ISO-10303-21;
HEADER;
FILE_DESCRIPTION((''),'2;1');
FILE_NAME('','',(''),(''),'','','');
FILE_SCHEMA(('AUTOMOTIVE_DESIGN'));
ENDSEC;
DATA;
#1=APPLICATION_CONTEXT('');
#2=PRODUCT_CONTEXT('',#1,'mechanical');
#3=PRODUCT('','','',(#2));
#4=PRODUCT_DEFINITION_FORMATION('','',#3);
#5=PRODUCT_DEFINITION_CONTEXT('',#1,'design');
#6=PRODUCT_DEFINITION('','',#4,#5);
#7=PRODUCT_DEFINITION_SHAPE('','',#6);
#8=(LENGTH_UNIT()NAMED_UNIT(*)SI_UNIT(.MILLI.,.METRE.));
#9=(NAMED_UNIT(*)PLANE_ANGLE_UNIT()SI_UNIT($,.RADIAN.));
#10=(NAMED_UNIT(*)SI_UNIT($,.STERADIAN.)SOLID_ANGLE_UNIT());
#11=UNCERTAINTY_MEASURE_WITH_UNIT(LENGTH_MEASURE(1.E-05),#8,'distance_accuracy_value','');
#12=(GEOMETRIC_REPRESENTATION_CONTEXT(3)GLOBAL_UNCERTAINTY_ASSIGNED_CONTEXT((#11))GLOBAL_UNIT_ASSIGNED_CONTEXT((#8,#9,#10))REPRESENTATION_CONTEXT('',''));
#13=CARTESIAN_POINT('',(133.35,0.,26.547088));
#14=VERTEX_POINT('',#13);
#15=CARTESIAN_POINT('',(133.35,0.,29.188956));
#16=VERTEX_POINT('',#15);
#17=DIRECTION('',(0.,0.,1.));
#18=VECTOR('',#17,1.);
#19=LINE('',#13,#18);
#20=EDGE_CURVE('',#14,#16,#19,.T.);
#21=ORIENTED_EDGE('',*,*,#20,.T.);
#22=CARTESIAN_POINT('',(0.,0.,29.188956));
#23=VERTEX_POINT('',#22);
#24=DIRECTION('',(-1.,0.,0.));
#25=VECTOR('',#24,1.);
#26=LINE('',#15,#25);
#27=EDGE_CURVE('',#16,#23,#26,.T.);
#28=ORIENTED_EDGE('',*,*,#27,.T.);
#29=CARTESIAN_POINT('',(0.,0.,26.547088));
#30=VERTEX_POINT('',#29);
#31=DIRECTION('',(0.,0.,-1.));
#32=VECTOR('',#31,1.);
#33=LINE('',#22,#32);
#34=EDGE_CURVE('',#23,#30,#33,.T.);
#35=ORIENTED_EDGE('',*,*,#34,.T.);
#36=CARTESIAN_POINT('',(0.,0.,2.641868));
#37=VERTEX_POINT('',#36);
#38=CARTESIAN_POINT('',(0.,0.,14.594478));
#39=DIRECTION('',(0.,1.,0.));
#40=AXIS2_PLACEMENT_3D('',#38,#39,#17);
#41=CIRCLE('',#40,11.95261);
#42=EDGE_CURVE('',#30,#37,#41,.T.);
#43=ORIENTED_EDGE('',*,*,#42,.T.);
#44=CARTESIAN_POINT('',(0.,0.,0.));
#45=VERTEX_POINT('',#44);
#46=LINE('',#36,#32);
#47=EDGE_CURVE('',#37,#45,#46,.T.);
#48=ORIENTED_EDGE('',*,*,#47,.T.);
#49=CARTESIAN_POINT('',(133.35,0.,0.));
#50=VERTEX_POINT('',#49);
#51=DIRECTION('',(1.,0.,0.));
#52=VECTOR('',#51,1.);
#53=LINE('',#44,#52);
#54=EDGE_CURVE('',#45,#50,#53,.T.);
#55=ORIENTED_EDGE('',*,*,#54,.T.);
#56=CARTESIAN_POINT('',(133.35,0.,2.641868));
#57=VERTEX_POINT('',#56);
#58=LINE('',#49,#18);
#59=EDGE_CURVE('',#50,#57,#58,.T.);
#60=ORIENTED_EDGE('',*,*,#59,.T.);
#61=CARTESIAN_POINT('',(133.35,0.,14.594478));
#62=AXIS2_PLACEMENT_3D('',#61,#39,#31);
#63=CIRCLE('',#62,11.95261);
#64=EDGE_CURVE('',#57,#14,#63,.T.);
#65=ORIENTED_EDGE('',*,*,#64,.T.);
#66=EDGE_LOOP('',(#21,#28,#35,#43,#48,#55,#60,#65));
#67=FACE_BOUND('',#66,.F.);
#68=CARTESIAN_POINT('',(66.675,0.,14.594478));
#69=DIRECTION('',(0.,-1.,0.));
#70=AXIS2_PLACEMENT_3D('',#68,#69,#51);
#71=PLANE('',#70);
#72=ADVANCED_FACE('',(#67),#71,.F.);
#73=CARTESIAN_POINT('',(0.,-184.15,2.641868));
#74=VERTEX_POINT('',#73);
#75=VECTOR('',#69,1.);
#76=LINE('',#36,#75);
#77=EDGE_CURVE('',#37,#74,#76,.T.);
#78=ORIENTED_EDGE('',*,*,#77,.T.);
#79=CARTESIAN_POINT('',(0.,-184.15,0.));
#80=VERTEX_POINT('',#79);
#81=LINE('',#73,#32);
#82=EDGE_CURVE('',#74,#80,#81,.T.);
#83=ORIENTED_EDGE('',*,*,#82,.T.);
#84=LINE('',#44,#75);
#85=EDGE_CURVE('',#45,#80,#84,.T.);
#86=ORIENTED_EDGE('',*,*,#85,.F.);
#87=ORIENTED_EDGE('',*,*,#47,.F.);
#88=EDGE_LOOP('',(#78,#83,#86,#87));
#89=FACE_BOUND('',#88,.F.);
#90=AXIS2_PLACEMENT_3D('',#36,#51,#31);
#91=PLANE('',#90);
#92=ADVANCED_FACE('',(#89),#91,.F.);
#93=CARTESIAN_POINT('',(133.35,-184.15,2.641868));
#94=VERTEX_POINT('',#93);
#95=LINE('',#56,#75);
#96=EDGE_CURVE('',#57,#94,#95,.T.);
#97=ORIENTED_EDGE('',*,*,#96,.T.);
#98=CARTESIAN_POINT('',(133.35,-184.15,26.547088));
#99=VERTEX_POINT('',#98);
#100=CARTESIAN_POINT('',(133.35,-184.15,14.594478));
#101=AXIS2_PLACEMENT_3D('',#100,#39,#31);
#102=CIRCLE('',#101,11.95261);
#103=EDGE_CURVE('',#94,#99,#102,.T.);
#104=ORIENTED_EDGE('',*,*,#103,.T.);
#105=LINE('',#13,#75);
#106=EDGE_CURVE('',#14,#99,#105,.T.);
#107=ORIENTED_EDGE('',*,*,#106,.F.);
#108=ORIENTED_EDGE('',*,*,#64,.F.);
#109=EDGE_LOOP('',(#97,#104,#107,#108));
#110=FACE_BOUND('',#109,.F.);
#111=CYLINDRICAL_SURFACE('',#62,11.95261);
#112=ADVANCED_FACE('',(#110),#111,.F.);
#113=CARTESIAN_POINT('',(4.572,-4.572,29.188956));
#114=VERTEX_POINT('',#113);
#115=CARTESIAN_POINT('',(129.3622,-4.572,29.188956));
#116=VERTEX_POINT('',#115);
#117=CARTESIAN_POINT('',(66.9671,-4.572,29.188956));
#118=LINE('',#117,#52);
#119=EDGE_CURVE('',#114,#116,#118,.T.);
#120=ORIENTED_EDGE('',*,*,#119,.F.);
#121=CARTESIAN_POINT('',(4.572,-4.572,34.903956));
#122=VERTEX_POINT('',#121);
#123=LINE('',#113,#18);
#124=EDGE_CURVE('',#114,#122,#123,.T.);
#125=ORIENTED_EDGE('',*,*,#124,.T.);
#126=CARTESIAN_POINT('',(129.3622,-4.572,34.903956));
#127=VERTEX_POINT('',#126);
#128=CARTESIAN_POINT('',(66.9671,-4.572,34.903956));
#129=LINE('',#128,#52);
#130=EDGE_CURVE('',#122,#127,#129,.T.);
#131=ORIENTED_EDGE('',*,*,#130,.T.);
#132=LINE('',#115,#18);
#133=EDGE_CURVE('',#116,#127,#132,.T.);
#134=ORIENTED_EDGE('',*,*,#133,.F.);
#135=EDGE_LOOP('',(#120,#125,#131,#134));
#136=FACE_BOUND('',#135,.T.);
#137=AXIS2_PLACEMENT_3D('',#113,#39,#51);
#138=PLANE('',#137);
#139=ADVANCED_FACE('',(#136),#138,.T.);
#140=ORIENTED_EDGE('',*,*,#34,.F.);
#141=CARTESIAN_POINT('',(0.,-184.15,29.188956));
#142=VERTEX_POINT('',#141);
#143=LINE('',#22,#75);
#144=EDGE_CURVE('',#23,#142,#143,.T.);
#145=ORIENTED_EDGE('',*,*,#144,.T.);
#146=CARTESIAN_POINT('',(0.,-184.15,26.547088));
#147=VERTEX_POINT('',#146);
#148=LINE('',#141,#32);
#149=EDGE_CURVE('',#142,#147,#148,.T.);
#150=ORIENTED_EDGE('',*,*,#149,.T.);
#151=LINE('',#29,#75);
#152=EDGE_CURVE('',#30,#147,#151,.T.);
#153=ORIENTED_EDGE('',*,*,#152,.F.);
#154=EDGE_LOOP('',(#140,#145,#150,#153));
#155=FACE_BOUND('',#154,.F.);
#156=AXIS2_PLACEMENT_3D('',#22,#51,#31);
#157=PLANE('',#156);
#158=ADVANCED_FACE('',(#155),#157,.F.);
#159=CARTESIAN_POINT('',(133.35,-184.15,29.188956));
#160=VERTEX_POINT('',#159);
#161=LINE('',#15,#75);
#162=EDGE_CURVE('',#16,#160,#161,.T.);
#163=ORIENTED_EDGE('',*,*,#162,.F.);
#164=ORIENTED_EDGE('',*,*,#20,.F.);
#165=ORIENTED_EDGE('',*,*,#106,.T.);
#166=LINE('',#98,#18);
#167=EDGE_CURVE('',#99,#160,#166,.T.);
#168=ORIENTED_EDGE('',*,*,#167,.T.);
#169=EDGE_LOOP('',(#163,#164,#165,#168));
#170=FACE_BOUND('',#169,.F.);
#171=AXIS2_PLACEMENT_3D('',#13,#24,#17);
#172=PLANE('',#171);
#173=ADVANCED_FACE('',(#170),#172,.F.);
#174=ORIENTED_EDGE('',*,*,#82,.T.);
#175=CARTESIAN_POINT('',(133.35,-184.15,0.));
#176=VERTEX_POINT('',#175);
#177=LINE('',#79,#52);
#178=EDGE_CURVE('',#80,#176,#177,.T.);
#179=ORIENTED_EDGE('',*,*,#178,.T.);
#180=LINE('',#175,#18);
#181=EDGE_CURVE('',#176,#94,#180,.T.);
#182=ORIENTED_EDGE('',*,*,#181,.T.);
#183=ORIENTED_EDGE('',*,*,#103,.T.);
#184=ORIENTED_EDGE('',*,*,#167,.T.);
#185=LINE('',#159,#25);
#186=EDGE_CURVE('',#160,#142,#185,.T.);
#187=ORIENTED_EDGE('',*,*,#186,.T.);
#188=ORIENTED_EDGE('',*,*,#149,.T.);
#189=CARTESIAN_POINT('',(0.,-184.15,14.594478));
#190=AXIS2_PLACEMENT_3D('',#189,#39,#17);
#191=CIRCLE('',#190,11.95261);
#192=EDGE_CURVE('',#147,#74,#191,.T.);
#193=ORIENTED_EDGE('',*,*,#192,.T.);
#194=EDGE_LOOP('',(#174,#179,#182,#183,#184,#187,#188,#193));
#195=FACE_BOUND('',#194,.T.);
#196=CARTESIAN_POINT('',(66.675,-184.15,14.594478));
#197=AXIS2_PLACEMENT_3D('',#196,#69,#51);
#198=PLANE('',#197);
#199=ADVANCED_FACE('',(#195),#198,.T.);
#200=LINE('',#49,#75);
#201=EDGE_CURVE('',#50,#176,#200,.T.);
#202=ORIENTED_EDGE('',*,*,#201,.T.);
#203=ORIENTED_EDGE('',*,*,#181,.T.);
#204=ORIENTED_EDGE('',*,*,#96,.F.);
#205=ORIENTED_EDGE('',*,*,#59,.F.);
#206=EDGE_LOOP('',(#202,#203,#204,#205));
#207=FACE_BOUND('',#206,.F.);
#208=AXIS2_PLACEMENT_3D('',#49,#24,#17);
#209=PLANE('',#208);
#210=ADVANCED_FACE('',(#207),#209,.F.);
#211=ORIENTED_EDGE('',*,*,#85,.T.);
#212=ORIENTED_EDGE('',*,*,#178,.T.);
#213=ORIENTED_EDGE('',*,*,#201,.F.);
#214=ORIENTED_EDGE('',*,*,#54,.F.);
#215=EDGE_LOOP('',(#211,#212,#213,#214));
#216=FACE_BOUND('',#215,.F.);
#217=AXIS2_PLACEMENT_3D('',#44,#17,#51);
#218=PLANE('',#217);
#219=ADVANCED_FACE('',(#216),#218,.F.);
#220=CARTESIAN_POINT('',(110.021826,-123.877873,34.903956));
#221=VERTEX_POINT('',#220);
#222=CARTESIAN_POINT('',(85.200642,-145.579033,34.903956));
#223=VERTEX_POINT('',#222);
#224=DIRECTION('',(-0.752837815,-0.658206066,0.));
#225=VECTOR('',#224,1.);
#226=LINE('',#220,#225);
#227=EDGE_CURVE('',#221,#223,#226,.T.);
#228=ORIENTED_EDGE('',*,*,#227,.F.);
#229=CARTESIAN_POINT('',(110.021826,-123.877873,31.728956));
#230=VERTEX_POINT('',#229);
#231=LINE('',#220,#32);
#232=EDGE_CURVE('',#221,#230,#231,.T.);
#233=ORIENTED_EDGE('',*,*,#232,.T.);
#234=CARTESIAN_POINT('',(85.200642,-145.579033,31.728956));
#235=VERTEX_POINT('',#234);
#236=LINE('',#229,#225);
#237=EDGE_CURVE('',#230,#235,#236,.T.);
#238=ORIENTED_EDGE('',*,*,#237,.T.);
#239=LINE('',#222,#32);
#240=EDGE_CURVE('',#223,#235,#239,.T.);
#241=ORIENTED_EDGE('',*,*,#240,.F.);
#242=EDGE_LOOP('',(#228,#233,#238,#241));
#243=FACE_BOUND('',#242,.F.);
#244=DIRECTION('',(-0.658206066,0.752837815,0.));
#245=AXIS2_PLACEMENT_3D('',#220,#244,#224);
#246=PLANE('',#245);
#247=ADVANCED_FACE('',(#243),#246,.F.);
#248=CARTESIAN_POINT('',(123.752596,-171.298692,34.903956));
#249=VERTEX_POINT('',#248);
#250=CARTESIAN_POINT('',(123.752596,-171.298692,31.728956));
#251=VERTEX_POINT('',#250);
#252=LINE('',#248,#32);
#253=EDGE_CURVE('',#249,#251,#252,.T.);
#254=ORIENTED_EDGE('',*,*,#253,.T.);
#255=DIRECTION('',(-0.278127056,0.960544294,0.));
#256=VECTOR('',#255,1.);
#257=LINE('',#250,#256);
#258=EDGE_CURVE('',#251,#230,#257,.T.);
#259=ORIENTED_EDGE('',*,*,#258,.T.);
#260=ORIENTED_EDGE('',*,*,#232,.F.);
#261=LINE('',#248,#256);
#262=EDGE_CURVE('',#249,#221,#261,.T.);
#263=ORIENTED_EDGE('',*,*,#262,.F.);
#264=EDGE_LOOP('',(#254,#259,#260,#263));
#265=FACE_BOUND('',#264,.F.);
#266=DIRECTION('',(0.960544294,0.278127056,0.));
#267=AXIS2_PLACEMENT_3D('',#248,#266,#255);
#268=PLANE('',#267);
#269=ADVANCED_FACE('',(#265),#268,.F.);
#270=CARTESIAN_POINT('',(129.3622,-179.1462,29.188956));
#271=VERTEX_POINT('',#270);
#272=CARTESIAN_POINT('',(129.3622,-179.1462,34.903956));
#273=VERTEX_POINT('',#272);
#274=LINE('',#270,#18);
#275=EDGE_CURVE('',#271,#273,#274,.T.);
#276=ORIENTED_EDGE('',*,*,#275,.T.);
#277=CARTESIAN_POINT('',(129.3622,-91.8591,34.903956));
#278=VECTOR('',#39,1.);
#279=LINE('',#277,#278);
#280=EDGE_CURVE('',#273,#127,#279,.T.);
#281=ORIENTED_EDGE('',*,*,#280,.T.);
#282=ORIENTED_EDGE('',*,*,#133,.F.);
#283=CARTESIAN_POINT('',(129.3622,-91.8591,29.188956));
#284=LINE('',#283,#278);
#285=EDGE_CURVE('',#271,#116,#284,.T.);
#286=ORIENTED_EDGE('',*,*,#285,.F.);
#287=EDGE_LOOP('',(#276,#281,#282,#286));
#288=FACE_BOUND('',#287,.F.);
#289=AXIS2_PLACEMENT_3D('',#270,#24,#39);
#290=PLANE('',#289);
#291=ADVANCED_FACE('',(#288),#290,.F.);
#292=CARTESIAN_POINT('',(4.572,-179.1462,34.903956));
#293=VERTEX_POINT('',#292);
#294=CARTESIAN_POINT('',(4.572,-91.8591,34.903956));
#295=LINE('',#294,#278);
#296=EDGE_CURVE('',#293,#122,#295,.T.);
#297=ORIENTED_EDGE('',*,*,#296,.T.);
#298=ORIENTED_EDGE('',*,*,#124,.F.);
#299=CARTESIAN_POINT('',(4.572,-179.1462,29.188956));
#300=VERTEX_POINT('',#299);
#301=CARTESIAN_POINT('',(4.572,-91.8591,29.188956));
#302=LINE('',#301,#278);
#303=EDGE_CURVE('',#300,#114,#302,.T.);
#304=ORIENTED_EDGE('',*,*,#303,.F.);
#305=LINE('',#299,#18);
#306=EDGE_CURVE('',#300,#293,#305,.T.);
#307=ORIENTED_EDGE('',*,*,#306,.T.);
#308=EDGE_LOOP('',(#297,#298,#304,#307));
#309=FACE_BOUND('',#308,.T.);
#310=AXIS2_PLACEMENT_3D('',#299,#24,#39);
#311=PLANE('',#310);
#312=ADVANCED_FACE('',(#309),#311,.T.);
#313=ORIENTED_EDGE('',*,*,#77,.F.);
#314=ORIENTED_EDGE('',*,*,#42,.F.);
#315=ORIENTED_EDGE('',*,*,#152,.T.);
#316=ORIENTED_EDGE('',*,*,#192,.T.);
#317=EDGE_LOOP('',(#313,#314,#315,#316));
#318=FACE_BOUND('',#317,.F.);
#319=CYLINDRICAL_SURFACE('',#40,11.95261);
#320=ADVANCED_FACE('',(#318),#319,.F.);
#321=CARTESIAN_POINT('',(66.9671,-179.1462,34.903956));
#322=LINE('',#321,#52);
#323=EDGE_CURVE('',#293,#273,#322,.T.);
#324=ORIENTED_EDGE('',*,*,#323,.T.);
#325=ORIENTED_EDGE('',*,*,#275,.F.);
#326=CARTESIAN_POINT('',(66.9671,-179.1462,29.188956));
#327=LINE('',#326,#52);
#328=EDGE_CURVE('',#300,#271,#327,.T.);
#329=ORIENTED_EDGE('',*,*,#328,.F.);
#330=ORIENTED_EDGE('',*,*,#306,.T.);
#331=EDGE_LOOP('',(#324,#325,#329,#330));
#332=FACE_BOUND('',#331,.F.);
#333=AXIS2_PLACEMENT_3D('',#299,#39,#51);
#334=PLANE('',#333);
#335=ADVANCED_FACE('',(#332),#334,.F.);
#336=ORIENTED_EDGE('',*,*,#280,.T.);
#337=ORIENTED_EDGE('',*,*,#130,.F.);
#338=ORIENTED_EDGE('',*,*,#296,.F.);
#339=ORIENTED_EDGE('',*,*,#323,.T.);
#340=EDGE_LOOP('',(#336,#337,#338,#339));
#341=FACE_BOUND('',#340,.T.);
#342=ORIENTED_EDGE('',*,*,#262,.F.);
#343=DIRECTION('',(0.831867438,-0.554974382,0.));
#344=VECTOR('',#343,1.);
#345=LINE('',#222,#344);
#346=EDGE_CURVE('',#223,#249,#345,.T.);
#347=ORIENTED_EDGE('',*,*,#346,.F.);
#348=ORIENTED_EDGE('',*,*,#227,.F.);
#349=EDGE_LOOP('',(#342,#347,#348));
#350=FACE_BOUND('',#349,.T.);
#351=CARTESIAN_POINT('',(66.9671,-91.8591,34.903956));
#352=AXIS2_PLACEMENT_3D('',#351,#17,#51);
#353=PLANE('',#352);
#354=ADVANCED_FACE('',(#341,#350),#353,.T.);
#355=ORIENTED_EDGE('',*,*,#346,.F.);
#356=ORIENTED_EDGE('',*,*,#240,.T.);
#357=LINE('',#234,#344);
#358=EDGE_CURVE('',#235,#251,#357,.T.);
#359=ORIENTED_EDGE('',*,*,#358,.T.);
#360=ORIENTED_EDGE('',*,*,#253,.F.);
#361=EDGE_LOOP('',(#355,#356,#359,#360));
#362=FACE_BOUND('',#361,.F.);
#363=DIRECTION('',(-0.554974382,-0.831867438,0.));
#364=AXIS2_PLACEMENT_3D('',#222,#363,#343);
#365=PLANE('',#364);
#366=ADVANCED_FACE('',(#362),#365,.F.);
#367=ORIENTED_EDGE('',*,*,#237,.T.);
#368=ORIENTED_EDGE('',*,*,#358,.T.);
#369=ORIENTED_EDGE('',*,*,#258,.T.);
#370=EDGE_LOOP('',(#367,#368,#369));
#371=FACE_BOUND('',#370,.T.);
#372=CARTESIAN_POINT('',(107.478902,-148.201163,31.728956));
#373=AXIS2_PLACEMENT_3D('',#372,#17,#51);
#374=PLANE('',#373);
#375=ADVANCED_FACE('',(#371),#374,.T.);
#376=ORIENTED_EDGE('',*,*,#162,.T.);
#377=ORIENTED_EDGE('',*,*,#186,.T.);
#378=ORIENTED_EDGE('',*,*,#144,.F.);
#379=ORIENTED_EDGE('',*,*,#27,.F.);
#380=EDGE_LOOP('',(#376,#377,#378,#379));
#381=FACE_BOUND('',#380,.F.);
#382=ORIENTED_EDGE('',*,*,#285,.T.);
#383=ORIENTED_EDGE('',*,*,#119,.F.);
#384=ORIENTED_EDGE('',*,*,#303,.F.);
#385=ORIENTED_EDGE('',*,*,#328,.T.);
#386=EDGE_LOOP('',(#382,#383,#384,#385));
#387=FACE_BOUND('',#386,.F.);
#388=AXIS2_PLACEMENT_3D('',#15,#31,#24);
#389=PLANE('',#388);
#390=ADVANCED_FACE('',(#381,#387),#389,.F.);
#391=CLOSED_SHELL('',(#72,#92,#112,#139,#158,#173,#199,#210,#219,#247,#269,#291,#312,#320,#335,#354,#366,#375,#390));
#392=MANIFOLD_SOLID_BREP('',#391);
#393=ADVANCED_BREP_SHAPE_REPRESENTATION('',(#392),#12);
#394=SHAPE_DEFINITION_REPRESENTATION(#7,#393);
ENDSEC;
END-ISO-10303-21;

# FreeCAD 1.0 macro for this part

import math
import FreeCAD as App
import Part
import Sketcher
Q = App.Units.Quantity

doc = App.newDocument("Part")
params = doc.addObject("Spreadsheet::Sheet", "Params")
for row, (alias, value) in enumerate([
    ("sketch1_width", "5.25 in"),
    ("pad1_length", "7.25 in"),
    ("sketch2_width", "4.913 in"),
    ("sketch2_height", "6.873 in"),
    ("pad2_length", "0.225 in"),
    ("pocket1_length", "0.125 in"),
], start=1):
    params.set(f"A{row}", alias)
    params.set(f"B{row}", "=" + value)
    params.setAlias(f"B{row}", alias)

body = doc.addObject("PartDesign::Body", "Body")

sketch1 = body.newObject("Sketcher::SketchObject", "Sketch")
sketch1.AttachmentSupport = (doc.getObject("XZ_Plane"), [""])
sketch1.MapMode = "FlatFace"
sketch1.addGeometry([
    Part.LineSegment(App.Vector(0, 2.641868, 0), App.Vector(0, 0, 0)),
    Part.LineSegment(App.Vector(0, 0, 0), App.Vector(133.35, 0, 0)),
    Part.LineSegment(App.Vector(133.35, 0, 0), App.Vector(133.35, 2.641868, 0)),
    Part.ArcOfCircle(Part.Circle(App.Vector(133.35, 14.594478, 0), App.Vector(0, 0, 1), 11.95261), math.radians(90), math.radians(270)),
    Part.LineSegment(App.Vector(133.35, 26.547088, 0), App.Vector(133.35, 29.188956, 0)),
    Part.LineSegment(App.Vector(133.35, 29.188956, 0), App.Vector(0, 29.188956, 0)),
    Part.LineSegment(App.Vector(0, 29.188956, 0), App.Vector(0, 26.547088, 0)),
    Part.ArcOfCircle(Part.Circle(App.Vector(0, 14.594478, 0), App.Vector(0, 0, 1), 11.95261), math.radians(-90), math.radians(90)),
], False)
sketch1.addConstraint([
    Sketcher.Constraint("Coincident", 0, 2, 1, 1),
    Sketcher.Constraint("Coincident", 1, 2, 2, 1),
    Sketcher.Constraint("Coincident", 2, 2, 3, 2),
    Sketcher.Constraint("Coincident", 3, 1, 4, 1),
    Sketcher.Constraint("Coincident", 4, 2, 5, 1),
    Sketcher.Constraint("Coincident", 5, 2, 6, 1),
    Sketcher.Constraint("Coincident", 6, 2, 7, 2),
    Sketcher.Constraint("Coincident", 7, 1, 0, 1),
    Sketcher.Constraint("Vertical", 0),
    Sketcher.Constraint("Horizontal", 1),
    Sketcher.Constraint("Vertical", 2),
    Sketcher.Constraint("Vertical", 4),
    Sketcher.Constraint("Horizontal", 5),
    Sketcher.Constraint("Vertical", 6),
    Sketcher.Constraint("Coincident", 0, 2, -1, 1),
    Sketcher.Constraint("Equal", 3, 7),
    Sketcher.Constraint("PointOnObject", 7, 3, -2),
    Sketcher.Constraint("PointOnObject", 5, 2, -2),
    Sketcher.Constraint("Horizontal", 3, 3, 7, 3),
    Sketcher.Constraint("Vertical", 3, 3, 1, 2),
    Sketcher.Constraint("Vertical", 2, 2, 3, 1),
    Sketcher.Constraint("Equal", 2, 4),
    Sketcher.Constraint("DistanceX", 1, 1, 1, 2, Q("5.25 in")),
    Sketcher.Constraint("Radius", 3, 11.95261),
    Sketcher.Constraint("DistanceY", 0, 2, 0, 1, 2.641868),
])
sketch1.setExpression("Constraints[22]", "Params.sketch1_width")
pad1 = body.newObject("PartDesign::Pad", "Pad")
pad1.Profile = sketch1
pad1.setExpression("Length", "Params.pad1_length")

sketch2 = body.newObject("Sketcher::SketchObject", "Sketch001")
sketch2.AttachmentSupport = (doc.getObject("XY_Plane"), [""])
sketch2.MapMode = "FlatFace"
sketch2.AttachmentOffset = App.Placement(App.Vector(0, 0, 29.188956), App.Rotation())
sketch2.addGeometry([
    Part.LineSegment(App.Vector(4.572, -4.572, 0), App.Vector(4.572, -179.1462, 0)),
    Part.LineSegment(App.Vector(4.572, -179.1462, 0), App.Vector(129.3622, -179.1462, 0)),
    Part.LineSegment(App.Vector(129.3622, -179.1462, 0), App.Vector(129.3622, -4.572, 0)),
    Part.LineSegment(App.Vector(129.3622, -4.572, 0), App.Vector(4.572, -4.572, 0)),
], False)
sketch2.addConstraint([
    Sketcher.Constraint("Coincident", 0, 2, 1, 1),
    Sketcher.Constraint("Coincident", 1, 2, 2, 1),
    Sketcher.Constraint("Coincident", 2, 2, 3, 1),
    Sketcher.Constraint("Coincident", 3, 2, 0, 1),
    Sketcher.Constraint("Vertical", 0),
    Sketcher.Constraint("Horizontal", 1),
    Sketcher.Constraint("Vertical", 2),
    Sketcher.Constraint("Horizontal", 3),
    Sketcher.Constraint("DistanceX", 1, 1, 1, 2, Q("4.913 in")),
    Sketcher.Constraint("DistanceY", 0, 2, 0, 1, Q("6.873 in")),
    Sketcher.Constraint("DistanceX", -1, 1, 0, 2, Q("0.18 in")),
    Sketcher.Constraint("DistanceY", 2, 2, -1, 1, Q("0.18 in")),
])
sketch2.setExpression("Constraints[8]", "Params.sketch2_width")
sketch2.setExpression("Constraints[9]", "Params.sketch2_height")
pad2 = body.newObject("PartDesign::Pad", "Pad001")
pad2.Profile = sketch2
pad2.setExpression("Length", "Params.pad2_length")

sketch3 = body.newObject("Sketcher::SketchObject", "Sketch002")
sketch3.AttachmentSupport = (doc.getObject("XY_Plane"), [""])
sketch3.MapMode = "FlatFace"
sketch3.AttachmentOffset = App.Placement(App.Vector(0, 0, 34.903956), App.Rotation())
sketch3.addGeometry([
    Part.LineSegment(App.Vector(85.200642, -145.579033, 0), App.Vector(123.752596, -171.298692, 0)),
    Part.LineSegment(App.Vector(123.752596, -171.298692, 0), App.Vector(110.021826, -123.877873, 0)),
    Part.LineSegment(App.Vector(110.021826, -123.877873, 0), App.Vector(85.200642, -145.579033, 0)),
], False)
sketch3.addConstraint([
    Sketcher.Constraint("Coincident", 0, 2, 1, 1),
    Sketcher.Constraint("Coincident", 1, 2, 2, 1),
    Sketcher.Constraint("Coincident", 2, 2, 0, 1),
    Sketcher.Constraint("Distance", 2, 32.970161),
    Sketcher.Constraint("DistanceY", 0, 2, -1, 1, 171.298692),
    Sketcher.Constraint("DistanceX", -1, 1, 2, 2, 85.200642),
    Sketcher.Constraint("DistanceX", 1, 2, 0, 2, 13.73077),
    Sketcher.Constraint("DistanceY", 0, 2, 1, 2, 47.420819),
    Sketcher.Constraint("DistanceY", 2, 2, 1, 2, 21.70116),
])
pocket1 = body.newObject("PartDesign::Pocket", "Pocket")
pocket1.Profile = sketch3
pocket1.setExpression("Length", "Params.pocket1_length")

doc.recompute()
